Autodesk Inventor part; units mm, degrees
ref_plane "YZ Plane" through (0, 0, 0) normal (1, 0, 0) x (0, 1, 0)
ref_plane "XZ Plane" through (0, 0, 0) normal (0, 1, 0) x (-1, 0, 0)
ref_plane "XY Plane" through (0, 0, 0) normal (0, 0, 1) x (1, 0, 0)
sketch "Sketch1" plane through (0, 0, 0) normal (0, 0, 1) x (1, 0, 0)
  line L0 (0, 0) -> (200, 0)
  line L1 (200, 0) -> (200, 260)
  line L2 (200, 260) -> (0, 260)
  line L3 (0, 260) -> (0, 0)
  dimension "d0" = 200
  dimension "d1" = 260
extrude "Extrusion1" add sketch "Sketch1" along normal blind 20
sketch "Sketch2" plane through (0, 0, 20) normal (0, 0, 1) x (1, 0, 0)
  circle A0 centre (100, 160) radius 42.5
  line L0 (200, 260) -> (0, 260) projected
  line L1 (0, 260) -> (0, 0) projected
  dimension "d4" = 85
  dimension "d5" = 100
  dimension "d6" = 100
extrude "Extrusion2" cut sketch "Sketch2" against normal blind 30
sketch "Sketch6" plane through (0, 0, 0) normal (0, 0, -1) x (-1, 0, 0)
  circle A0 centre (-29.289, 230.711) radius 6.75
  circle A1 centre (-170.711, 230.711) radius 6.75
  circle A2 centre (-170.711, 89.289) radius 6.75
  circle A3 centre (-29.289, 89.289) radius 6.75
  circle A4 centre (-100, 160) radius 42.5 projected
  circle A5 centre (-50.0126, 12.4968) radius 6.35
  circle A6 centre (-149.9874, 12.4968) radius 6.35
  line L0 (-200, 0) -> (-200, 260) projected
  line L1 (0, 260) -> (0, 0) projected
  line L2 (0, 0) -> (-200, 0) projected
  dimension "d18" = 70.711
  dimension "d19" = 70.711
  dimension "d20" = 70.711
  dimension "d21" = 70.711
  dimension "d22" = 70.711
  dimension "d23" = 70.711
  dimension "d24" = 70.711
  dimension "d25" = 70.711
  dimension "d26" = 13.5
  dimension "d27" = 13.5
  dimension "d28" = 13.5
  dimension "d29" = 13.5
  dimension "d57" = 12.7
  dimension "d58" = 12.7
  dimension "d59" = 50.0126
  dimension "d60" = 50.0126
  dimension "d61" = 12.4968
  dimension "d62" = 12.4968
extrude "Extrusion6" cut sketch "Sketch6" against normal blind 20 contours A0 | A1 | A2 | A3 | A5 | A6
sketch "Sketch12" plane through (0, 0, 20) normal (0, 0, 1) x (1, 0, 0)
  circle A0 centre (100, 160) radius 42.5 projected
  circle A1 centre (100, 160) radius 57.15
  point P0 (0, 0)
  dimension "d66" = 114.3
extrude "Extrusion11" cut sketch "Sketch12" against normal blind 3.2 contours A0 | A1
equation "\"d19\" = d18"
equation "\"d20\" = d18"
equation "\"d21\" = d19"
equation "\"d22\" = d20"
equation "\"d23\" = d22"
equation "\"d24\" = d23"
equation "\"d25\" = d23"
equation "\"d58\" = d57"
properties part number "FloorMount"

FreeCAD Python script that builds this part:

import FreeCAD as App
import Part
import Sketcher
Q = App.Units.Quantity


def add_polygon(sketch, points):
    """Adds a closed chain of lines whose ends are joined by coincident constraints."""
    first, n = sketch.GeometryCount, len(points)
    for a, b in zip(points, points[1:] + points[:1]):
        sketch.addGeometry(Part.LineSegment(App.Vector(*a, 0), App.Vector(*b, 0)), False)
    for i in range(n):
        sketch.addConstraint(Sketcher.Constraint("Coincident", first + i, 2, first + (i + 1) % n, 1))

doc = App.newDocument("Part")
body = doc.addObject("PartDesign::Body", "Body")

# Sketch on XY plane
sketch1 = body.newObject("Sketcher::SketchObject", "Sketch")
sketch1.AttachmentSupport = (doc.getObject("XY_Plane"), [""])
sketch1.MapMode = "FlatFace"
add_polygon(sketch1, [(0, 260), (0, 0), (200, 0), (200, 260)])  # lines 0-3
sketch1.addConstraint(Sketcher.Constraint("Vertical", 0))
sketch1.addConstraint(Sketcher.Constraint("Horizontal", 1))
sketch1.addConstraint(Sketcher.Constraint("Vertical", 2))
sketch1.addConstraint(Sketcher.Constraint("Horizontal", 3))
sketch1.addConstraint(Sketcher.Constraint("Coincident", 0, 2, -1, 1))
sketch1.addConstraint(Sketcher.Constraint("DistanceX", 1, 1, 1, 2, Q("200 mm")))
sketch1.addConstraint(Sketcher.Constraint("DistanceY", 0, 2, 0, 1, Q("260 mm")))
pad1 = body.newObject("PartDesign::Pad", "Pad")
pad1.Profile = sketch1
pad1.Length = 20

# Sketch on XY plane
sketch2 = body.newObject("Sketcher::SketchObject", "Sketch001")
sketch2.AttachmentSupport = (doc.getObject("XY_Plane"), [""])
sketch2.MapMode = "FlatFace"
sketch2.AttachmentOffset = App.Placement(App.Vector(0, 0, 20), App.Rotation())
sketch2.addGeometry(Part.Circle(App.Vector(100, 160, 0), App.Vector(0, 0, 1), 42), False)
sketch2.addConstraint(Sketcher.Constraint("Diameter", 0, Q("85 mm")))
sketch2.addConstraint(Sketcher.Constraint("DistanceX", -1, 1, 0, 3, Q("100 mm")))
sketch2.addConstraint(Sketcher.Constraint("DistanceY", -1, 1, 0, 3, Q("160 mm")))
pocket1 = body.newObject("PartDesign::Pocket", "Pocket")
pocket1.Profile = sketch2
pocket1.Length = 30

# Sketch on XY plane
sketch3 = body.newObject("Sketcher::SketchObject", "Sketch002")
sketch3.AttachmentSupport = (doc.getObject("XY_Plane"), [""])
sketch3.MapMode = "FlatFace"
sketch3.addGeometry(Part.Circle(App.Vector(29, 231, 0), App.Vector(0, 0, 1), 7), False)
sketch3.addGeometry(Part.Circle(App.Vector(171, 231, 0), App.Vector(0, 0, 1), 7), False)
sketch3.addGeometry(Part.Circle(App.Vector(171, 89, 0), App.Vector(0, 0, 1), 7), False)
sketch3.addGeometry(Part.Circle(App.Vector(29, 89, 0), App.Vector(0, 0, 1), 7), False)
sketch3.addGeometry(Part.Circle(App.Vector(50, 12, 0), App.Vector(0, 0, 1), 6), False)
sketch3.addGeometry(Part.Circle(App.Vector(150, 12, 0), App.Vector(0, 0, 1), 6), False)
sketch3.addConstraint(Sketcher.Constraint("Equal", 0, 1))
sketch3.addConstraint(Sketcher.Constraint("Equal", 1, 2))
sketch3.addConstraint(Sketcher.Constraint("Equal", 2, 3))
sketch3.addConstraint(Sketcher.Constraint("Equal", 4, 5))
sketch3.addConstraint(Sketcher.Constraint("Horizontal", 0, 3, 1, 3))
sketch3.addConstraint(Sketcher.Constraint("Horizontal", 2, 3, 3, 3))
sketch3.addConstraint(Sketcher.Constraint("Horizontal", 4, 3, 5, 3))
sketch3.addConstraint(Sketcher.Constraint("Vertical", 1, 3, 2, 3))
sketch3.addConstraint(Sketcher.Constraint("Vertical", 0, 3, 3, 3))
sketch3.addConstraint(Sketcher.Constraint("Diameter", 0, Q("13.5 mm")))
sketch3.addConstraint(Sketcher.Constraint("Diameter", 4, Q("12.7 mm")))
sketch3.addConstraint(Sketcher.Constraint("DistanceX", -1, 1, 4, 3, Q("50.0126 mm")))
sketch3.addConstraint(Sketcher.Constraint("DistanceY", -1, 1, 4, 3, Q("12.4968 mm")))
sketch3.addConstraint(Sketcher.Constraint("DistanceX", -1, 1, 0, 3, Q("29.289 mm")))
sketch3.addConstraint(Sketcher.Constraint("DistanceY", -1, 1, 0, 3, Q("230.711 mm")))
sketch3.addConstraint(Sketcher.Constraint("DistanceX", -1, 1, 1, 3, Q("170.711 mm")))
sketch3.addConstraint(Sketcher.Constraint("DistanceY", -1, 1, 2, 3, Q("89.289 mm")))
sketch3.addConstraint(Sketcher.Constraint("DistanceX", -1, 1, 5, 3, Q("149.9874 mm")))
pocket2 = body.newObject("PartDesign::Pocket", "Pocket001")
pocket2.Profile = sketch3
pocket2.Length = 20
pocket2.Reversed = True

# Sketch on XY plane
sketch4 = body.newObject("Sketcher::SketchObject", "Sketch003")
sketch4.AttachmentSupport = (doc.getObject("XY_Plane"), [""])
sketch4.MapMode = "FlatFace"
sketch4.AttachmentOffset = App.Placement(App.Vector(0, 0, 20), App.Rotation())
sketch4.addGeometry(Part.Circle(App.Vector(100, 160, 0), App.Vector(0, 0, 1), 57), False)
sketch4.addConstraint(Sketcher.Constraint("Diameter", 0, Q("114.3 mm")))
sketch4.addConstraint(Sketcher.Constraint("DistanceX", -1, 1, 0, 3, Q("100 mm")))
sketch4.addConstraint(Sketcher.Constraint("DistanceY", -1, 1, 0, 3, Q("160 mm")))
pocket3 = body.newObject("PartDesign::Pocket", "Pocket002")
pocket3.Profile = sketch4
pocket3.Length = 3.2

doc.recompute()
